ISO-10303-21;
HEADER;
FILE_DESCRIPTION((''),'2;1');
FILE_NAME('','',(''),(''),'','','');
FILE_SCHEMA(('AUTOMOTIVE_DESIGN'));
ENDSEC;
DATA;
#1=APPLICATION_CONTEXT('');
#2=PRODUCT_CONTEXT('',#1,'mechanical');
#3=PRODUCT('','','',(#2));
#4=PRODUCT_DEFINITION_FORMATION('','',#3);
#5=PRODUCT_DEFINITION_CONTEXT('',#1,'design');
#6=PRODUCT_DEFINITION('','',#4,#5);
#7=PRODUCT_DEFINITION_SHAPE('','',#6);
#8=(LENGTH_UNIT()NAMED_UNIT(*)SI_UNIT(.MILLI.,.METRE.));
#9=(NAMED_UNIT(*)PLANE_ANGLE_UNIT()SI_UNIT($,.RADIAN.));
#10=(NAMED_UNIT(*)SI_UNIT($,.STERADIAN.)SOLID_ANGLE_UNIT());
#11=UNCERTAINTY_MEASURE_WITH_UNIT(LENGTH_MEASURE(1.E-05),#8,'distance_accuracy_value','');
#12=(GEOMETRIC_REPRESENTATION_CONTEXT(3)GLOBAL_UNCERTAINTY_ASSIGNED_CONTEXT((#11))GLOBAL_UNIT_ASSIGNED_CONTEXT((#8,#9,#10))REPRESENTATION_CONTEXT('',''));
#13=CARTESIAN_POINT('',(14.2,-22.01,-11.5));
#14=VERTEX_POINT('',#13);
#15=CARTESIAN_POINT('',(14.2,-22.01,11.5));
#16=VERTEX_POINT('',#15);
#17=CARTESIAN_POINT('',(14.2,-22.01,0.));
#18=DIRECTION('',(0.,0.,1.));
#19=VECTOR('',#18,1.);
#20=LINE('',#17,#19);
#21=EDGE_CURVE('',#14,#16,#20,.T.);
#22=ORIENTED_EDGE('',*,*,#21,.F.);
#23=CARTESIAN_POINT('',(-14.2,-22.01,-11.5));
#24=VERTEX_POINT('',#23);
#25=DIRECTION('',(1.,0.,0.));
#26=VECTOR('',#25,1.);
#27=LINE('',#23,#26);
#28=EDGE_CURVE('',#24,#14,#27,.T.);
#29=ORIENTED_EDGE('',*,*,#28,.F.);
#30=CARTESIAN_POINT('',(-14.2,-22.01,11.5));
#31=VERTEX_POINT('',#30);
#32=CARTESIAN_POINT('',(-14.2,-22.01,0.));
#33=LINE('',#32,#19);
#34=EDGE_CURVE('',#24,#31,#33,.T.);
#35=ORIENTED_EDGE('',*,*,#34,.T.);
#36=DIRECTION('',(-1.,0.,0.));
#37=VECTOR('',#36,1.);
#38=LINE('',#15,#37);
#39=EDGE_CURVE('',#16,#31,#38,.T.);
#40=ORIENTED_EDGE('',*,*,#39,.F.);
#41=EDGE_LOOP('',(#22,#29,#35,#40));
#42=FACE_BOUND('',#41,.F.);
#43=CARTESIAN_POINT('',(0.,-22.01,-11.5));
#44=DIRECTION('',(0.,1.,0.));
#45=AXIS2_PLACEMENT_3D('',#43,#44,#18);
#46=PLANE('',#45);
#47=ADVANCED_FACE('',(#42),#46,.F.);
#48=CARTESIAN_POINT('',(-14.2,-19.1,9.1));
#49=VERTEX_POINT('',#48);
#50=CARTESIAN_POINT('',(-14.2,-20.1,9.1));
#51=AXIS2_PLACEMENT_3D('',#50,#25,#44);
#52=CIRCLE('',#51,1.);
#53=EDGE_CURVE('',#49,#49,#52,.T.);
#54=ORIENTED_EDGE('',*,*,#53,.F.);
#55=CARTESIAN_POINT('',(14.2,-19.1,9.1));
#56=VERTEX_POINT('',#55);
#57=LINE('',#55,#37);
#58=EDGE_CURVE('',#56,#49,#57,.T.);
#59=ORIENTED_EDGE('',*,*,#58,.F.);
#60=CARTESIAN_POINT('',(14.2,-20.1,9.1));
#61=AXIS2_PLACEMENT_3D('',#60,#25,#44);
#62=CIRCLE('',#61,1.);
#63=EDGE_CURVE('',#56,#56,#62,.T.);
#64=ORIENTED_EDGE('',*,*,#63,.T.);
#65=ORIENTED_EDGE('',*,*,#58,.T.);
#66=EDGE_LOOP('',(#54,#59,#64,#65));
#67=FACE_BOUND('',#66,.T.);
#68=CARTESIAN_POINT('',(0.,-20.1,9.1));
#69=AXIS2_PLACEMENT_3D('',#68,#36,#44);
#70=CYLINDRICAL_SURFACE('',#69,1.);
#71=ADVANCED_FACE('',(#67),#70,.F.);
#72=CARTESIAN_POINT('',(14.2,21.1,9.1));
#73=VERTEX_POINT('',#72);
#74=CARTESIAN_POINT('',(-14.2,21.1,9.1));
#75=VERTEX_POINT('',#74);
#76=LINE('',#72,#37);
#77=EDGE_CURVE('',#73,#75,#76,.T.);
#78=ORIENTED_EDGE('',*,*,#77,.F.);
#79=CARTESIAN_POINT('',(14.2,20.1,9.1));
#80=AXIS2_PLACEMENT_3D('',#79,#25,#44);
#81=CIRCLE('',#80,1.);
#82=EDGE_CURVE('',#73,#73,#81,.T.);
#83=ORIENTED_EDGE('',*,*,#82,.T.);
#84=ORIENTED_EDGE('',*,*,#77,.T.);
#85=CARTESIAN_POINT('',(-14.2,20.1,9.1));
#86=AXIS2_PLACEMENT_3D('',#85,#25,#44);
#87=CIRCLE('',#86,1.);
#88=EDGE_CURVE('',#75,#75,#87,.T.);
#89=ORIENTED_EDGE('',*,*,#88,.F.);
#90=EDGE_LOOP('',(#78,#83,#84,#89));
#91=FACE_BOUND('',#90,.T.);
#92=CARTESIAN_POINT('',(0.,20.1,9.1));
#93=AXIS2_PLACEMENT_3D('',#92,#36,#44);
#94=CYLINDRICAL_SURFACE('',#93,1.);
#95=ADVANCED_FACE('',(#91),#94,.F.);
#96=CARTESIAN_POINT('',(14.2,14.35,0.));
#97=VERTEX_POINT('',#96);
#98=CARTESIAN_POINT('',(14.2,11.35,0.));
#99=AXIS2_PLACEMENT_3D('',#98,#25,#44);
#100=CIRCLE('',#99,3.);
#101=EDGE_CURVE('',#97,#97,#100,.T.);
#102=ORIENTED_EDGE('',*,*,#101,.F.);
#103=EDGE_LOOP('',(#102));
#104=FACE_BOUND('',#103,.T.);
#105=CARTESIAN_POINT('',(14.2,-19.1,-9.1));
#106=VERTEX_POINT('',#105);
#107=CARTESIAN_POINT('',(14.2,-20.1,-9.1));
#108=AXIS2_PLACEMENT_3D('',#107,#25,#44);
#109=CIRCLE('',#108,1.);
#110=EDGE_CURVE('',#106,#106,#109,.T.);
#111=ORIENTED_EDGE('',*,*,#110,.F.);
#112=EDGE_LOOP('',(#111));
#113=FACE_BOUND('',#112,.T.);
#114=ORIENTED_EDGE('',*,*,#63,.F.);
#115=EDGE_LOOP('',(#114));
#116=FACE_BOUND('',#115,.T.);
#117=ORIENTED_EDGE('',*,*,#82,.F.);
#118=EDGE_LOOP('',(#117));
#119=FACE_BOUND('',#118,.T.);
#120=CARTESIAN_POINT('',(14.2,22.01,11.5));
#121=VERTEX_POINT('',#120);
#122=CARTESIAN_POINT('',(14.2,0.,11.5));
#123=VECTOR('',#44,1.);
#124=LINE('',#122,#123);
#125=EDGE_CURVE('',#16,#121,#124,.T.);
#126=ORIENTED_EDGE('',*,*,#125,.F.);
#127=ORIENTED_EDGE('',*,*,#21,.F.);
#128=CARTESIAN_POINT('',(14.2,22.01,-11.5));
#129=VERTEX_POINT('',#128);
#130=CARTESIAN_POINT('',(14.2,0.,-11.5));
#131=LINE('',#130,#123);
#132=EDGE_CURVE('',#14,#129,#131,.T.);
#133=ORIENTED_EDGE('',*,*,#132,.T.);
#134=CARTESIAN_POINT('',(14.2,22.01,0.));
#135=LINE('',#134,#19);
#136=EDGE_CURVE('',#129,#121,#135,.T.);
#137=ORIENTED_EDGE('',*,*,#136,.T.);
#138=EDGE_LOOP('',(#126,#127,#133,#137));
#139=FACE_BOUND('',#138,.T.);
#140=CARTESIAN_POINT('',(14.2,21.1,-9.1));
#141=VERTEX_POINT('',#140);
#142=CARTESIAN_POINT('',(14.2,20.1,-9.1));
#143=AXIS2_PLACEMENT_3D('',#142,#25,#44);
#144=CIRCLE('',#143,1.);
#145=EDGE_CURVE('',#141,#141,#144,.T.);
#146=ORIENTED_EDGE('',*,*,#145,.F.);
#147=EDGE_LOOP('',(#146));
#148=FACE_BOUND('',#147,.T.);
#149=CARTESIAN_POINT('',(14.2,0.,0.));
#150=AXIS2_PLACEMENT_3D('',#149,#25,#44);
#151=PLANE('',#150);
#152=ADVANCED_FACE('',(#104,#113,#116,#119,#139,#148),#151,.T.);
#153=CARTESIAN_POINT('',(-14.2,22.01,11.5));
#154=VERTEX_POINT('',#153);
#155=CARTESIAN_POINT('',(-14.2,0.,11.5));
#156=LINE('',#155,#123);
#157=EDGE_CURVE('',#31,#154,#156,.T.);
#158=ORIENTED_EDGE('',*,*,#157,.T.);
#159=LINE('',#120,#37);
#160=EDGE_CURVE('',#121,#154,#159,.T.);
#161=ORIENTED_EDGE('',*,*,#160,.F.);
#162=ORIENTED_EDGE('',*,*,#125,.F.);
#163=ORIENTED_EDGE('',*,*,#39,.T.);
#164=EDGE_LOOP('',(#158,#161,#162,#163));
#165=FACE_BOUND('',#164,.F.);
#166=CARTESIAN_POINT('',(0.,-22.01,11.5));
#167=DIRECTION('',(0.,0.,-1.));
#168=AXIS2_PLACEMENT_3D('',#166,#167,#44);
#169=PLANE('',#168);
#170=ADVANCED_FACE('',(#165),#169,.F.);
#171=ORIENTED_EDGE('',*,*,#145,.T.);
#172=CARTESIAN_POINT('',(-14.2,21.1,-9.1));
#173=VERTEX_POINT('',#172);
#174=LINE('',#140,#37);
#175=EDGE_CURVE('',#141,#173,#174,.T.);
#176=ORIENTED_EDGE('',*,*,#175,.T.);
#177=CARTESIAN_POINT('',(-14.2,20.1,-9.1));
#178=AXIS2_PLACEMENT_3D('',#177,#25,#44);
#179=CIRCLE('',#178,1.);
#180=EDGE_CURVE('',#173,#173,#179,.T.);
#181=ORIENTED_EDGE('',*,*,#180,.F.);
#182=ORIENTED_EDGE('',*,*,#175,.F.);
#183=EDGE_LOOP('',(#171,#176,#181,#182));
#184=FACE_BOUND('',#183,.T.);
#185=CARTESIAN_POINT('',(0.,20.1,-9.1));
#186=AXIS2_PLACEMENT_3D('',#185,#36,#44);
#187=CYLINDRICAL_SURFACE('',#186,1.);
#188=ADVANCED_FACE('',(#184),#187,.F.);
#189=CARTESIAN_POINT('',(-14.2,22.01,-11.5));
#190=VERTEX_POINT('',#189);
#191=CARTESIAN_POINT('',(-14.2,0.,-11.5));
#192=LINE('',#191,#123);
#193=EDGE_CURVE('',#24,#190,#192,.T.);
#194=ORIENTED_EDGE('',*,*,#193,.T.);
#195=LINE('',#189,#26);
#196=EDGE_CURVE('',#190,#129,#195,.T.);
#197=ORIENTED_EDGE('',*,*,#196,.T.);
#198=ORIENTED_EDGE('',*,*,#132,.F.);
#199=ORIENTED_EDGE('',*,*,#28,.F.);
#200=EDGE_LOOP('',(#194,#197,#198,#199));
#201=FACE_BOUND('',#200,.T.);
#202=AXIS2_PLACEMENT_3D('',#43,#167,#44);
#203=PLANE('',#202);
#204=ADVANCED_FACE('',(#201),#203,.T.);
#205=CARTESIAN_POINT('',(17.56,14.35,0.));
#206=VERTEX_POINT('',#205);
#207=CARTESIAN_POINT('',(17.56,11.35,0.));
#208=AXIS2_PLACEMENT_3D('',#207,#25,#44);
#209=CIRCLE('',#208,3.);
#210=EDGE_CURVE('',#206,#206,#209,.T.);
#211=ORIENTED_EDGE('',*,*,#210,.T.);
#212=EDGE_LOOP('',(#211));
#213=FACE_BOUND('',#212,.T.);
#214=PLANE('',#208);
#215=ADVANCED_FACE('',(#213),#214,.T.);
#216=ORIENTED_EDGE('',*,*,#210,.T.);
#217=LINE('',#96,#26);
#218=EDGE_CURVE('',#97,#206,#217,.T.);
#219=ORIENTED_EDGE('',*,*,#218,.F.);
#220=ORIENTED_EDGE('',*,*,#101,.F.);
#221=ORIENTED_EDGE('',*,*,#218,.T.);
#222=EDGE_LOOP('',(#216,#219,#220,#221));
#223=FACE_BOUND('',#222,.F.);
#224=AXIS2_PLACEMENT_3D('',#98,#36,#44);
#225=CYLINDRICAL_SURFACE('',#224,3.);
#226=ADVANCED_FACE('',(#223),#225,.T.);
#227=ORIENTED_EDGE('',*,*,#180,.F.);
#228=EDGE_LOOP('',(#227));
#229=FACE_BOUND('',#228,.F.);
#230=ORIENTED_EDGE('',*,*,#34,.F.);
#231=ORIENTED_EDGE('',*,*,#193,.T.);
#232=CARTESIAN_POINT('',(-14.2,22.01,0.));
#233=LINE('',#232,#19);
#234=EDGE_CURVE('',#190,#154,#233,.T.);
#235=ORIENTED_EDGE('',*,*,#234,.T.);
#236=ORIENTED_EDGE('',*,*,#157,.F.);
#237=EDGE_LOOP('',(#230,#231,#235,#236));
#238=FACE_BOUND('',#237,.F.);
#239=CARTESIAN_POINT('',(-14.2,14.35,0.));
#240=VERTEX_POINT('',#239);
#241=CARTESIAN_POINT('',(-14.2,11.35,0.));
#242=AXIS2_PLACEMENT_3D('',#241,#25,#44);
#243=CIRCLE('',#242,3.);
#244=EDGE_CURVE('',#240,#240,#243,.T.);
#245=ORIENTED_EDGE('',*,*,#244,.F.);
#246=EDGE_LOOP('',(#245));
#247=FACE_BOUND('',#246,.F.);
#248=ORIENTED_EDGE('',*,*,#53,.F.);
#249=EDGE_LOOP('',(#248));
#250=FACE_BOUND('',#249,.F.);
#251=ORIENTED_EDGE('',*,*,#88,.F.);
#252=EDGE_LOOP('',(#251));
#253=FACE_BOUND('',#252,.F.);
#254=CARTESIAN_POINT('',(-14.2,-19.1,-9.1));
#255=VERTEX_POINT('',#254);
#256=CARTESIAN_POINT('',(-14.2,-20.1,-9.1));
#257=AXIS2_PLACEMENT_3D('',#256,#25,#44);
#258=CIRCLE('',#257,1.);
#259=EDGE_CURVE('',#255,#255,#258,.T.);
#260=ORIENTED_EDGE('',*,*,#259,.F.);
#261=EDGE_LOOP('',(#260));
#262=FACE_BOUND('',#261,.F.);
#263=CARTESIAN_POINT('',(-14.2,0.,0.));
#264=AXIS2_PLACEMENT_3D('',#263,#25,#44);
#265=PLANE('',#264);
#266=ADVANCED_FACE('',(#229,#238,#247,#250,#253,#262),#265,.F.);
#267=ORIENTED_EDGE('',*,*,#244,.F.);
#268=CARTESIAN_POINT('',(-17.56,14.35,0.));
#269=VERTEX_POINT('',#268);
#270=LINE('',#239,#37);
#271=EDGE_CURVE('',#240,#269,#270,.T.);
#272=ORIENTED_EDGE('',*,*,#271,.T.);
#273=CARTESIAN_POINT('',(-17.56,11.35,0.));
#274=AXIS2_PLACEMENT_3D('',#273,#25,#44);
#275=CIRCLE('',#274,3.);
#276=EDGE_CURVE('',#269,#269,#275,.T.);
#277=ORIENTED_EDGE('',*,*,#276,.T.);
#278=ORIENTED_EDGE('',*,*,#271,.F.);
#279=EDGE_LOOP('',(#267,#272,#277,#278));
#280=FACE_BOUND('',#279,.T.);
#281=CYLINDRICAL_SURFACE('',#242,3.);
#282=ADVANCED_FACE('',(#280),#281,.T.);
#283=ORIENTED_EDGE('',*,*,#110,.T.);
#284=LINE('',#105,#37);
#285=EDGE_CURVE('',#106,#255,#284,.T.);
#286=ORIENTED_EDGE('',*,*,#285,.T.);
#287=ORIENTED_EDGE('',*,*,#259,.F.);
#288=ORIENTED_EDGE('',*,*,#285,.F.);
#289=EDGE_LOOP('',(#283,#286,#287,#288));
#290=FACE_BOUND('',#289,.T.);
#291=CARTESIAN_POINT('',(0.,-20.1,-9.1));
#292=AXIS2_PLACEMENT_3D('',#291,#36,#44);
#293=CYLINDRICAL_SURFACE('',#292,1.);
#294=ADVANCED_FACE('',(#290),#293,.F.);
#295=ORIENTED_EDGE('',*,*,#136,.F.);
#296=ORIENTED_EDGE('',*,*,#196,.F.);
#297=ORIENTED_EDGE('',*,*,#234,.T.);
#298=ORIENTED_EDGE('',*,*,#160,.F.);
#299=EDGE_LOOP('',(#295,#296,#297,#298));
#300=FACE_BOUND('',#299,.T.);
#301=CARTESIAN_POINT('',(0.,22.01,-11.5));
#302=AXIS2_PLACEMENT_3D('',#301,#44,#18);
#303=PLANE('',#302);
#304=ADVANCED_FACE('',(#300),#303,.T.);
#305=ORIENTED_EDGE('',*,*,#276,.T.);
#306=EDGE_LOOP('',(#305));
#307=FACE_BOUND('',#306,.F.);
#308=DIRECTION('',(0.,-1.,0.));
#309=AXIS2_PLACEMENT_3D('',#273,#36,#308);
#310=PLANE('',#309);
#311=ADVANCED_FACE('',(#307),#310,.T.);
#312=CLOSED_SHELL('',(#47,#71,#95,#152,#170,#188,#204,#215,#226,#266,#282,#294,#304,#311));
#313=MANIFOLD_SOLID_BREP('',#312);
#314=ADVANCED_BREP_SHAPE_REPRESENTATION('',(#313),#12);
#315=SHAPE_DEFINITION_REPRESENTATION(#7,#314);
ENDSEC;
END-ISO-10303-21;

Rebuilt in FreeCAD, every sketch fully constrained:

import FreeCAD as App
import Part
import Sketcher

doc = App.newDocument("Part")
body = doc.addObject("PartDesign::Body", "Body")

# Sketch on YZ plane
sketch1 = body.newObject("Sketcher::SketchObject", "Sketch")
sketch1.AttachmentSupport = (doc.getObject("YZ_Plane"), [""])
sketch1.MapMode = "FlatFace"
sketch1.addGeometry([
    Part.LineSegment(App.Vector(-22, 11.5, 0), App.Vector(-22, -11.5, 0)),  # 0
    Part.LineSegment(App.Vector(-22, -11.5, 0), App.Vector(22, -11.5, 0)),  # 1
    Part.LineSegment(App.Vector(22, -11.5, 0), App.Vector(22, 11.5, 0)),  # 2
    Part.LineSegment(App.Vector(22, 11.5, 0), App.Vector(-22, 11.5, 0)),  # 3
    Part.Circle(App.Vector(-20.1, -9.1, 0), App.Vector(0, 0, 1), 1),  # 4
    Part.Circle(App.Vector(20.1, -9.1, 0), App.Vector(0, 0, 1), 1),  # 5
    Part.Circle(App.Vector(-20.1, 9.1, 0), App.Vector(0, 0, 1), 1),  # 6
    Part.Circle(App.Vector(20.1, 9.1, 0), App.Vector(0, 0, 1), 1),  # 7
], False)
sketch1.addConstraint([
    Sketcher.Constraint("Coincident", 0, 2, 1, 1),
    Sketcher.Constraint("Coincident", 1, 2, 2, 1),
    Sketcher.Constraint("Coincident", 2, 2, 3, 1),
    Sketcher.Constraint("Coincident", 3, 2, 0, 1),
    Sketcher.Constraint("Vertical", 0),
    Sketcher.Constraint("Horizontal", 1),
    Sketcher.Constraint("Vertical", 2),
    Sketcher.Constraint("Horizontal", 3),
    Sketcher.Constraint("Equal", 4, 5),
    Sketcher.Constraint("Equal", 5, 6),
    Sketcher.Constraint("Equal", 6, 7),
    Sketcher.Constraint("Symmetric", 5, 3, 6, 3, -1, 1),
    Sketcher.Constraint("Symmetric", 4, 3, 7, 3, -1, 1),
    Sketcher.Constraint("Symmetric", 0, 2, 2, 2, -1, 1),
    Sketcher.Constraint("Symmetric", 4, 3, 5, 3, -2),
    Sketcher.Constraint("Diameter", 4, 2.0),
    Sketcher.Constraint("DistanceY", 0, 2, 0, 1, 23.0),
    Sketcher.Constraint("DistanceX", 1, 1, 1, 2, 44.02),
    Sketcher.Constraint("DistanceX", 4, 3, -1, 1, 20.1),
    Sketcher.Constraint("DistanceY", 4, 3, -1, 1, 9.1),
])
pad1 = body.newObject("PartDesign::Pad", "Pad")
pad1.Profile = sketch1
pad1.Length = 28.4
pad1.Midplane = True

# Sketch on YZ plane
sketch2 = body.newObject("Sketcher::SketchObject", "Sketch001")
sketch2.AttachmentSupport = (doc.getObject("YZ_Plane"), [""])
sketch2.MapMode = "FlatFace"
sketch2.AttachmentOffset = App.Placement(App.Vector(0, 0, 14.2), App.Rotation())
sketch2.addGeometry(Part.Circle(App.Vector(11.3, 0, 0), App.Vector(0, 0, 1), 3), False)
sketch2.addConstraint([
    Sketcher.Constraint("PointOnObject", 0, 3, -1),
    Sketcher.Constraint("Diameter", 0, 6.0),
    Sketcher.Constraint("DistanceX", -1, 1, 0, 3, 11.35),
])
pad2 = body.newObject("PartDesign::Pad", "Pad001")
pad2.Profile = sketch2
pad2.Length = 3.36
doc.recompute()

mirrored = body.newObject("PartDesign::Mirrored", "Mirrored")
mirrored.Originals = [pad2]
mirrored.MirrorPlane = (doc.getObject("YZ_Plane"), [""])
body.Tip = mirrored

doc.recompute()
